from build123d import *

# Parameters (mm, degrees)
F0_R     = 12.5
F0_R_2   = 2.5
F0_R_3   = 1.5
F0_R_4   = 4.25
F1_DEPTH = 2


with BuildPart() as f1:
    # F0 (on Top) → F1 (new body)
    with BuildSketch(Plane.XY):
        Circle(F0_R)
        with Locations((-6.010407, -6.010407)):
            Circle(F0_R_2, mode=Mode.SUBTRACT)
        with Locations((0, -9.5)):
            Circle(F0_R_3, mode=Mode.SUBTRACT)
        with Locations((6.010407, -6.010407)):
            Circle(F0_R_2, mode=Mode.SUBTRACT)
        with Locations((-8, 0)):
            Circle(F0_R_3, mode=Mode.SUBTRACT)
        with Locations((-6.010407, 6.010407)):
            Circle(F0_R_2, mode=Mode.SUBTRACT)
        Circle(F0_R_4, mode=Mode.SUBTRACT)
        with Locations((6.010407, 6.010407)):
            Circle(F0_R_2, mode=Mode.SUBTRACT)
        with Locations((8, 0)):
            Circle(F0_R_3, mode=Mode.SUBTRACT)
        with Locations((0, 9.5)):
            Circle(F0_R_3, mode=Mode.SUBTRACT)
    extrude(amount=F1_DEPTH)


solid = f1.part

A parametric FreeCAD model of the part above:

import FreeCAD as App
import Part
import Sketcher

V = App.Vector

doc = App.newDocument("Part")
body = doc.addObject("PartDesign::Body", "Body")

sketch1 = doc.addObject("Sketcher::SketchObject", "Sketch")
body.addObject(sketch1)
sketch1.AttachmentSupport = (doc.XY_Plane, [""])
sketch1.MapMode = "FlatFace"
sketch1.addGeometry([
    Part.Circle(V(0, 0, 0), V(0, 0, 1), 12.5),
    Part.Circle(V(-6, -6, 0), V(0, 0, 1), 2.5),
    Part.Circle(V(0, -9.5, 0), V(0, 0, 1), 1.5),
    Part.Circle(V(6, -6, 0), V(0, 0, 1), 2.5),
    Part.Circle(V(-8, 0, 0), V(0, 0, 1), 1.5),
    Part.Circle(V(-6, 6, 0), V(0, 0, 1), 2.5),
    Part.Circle(V(0, 0, 0), V(0, 0, 1), 4.2),
    Part.Circle(V(8, 0, 0), V(0, 0, 1), 1.5),
    Part.Circle(V(0, 9.5, 0), V(0, 0, 1), 1.5),
    Part.Circle(V(6, 6, 0), V(0, 0, 1), 2.5),
], False)
sketch1.addConstraint([
    Sketcher.Constraint("Coincident", 0, 3, -1, 1),
    Sketcher.Constraint("Coincident", 6, 3, -1, 1),
    Sketcher.Constraint("Equal", 1, 3),
    Sketcher.Constraint("Equal", 2, 4),
    Sketcher.Constraint("Equal", 3, 5),
    Sketcher.Constraint("Equal", 4, 7),
    Sketcher.Constraint("Equal", 7, 8),
    Sketcher.Constraint("Equal", 5, 9),
    Sketcher.Constraint("Symmetric", 3, 3, 5, 3, -1, 1),
    Sketcher.Constraint("Symmetric", 4, 3, 7, 3, -1, 1),
    Sketcher.Constraint("Symmetric", 2, 3, 8, 3, -1, 1),
    Sketcher.Constraint("Symmetric", 1, 3, 9, 3, -1, 1),
    Sketcher.Constraint("Symmetric", 1, 3, 3, 3, -2),
    Sketcher.Constraint("PointOnObject", 2, 3, -2),
    Sketcher.Constraint("PointOnObject", 4, 3, -1),
    Sketcher.Constraint("Diameter", 0, 25.0),
    Sketcher.Constraint("Diameter", 1, 5.0),
    Sketcher.Constraint("Diameter", 2, 3.0),
    Sketcher.Constraint("Diameter", 6, 8.5),
    Sketcher.Constraint("DistanceX", 4, 3, -1, 1, 8.0),
    Sketcher.Constraint("DistanceY", 2, 3, -1, 1, 9.5),
    Sketcher.Constraint("DistanceX", 1, 3, -1, 1, 6.010407),
    Sketcher.Constraint("DistanceY", 1, 3, -1, 1, 6.010407),
])
pad1 = doc.addObject("PartDesign::Pad", "Pad")
body.addObject(pad1)
pad1.Profile = sketch1
pad1.Length = 2

doc.recompute()
